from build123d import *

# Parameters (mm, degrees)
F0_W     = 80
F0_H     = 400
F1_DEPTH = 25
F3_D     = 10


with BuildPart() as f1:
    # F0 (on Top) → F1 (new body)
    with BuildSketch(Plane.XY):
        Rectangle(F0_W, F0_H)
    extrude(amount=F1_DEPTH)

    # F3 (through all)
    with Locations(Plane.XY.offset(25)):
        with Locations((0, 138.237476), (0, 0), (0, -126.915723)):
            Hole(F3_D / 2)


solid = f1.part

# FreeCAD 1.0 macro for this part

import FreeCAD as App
import Part
import Sketcher
Q = App.Units.Quantity


def add_polygon(sketch, points):
    """Adds a closed chain of lines whose ends are joined by coincident constraints."""
    first, n = sketch.GeometryCount, len(points)
    for a, b in zip(points, points[1:] + points[:1]):
        sketch.addGeometry(Part.LineSegment(App.Vector(*a, 0), App.Vector(*b, 0)), False)
    for i in range(n):
        sketch.addConstraint(Sketcher.Constraint("Coincident", first + i, 2, first + (i + 1) % n, 1))

doc = App.newDocument("Part")
body = doc.addObject("PartDesign::Body", "Body")

sketch1 = body.newObject("Sketcher::SketchObject", "Sketch")
sketch1.AttachmentSupport = (doc.getObject("XY_Plane"), [""])
sketch1.MapMode = "FlatFace"
add_polygon(sketch1, [(-40, 200), (-40, -200), (40, -200), (40, 200)])
sketch1.addConstraint([
    Sketcher.Constraint("Vertical", 0),
    Sketcher.Constraint("Horizontal", 1),
    Sketcher.Constraint("Vertical", 2),
    Sketcher.Constraint("Horizontal", 3),
    Sketcher.Constraint("Symmetric", 0, 2, 2, 2, -1, 1),
    Sketcher.Constraint("DistanceX", 1, 1, 1, 2, Q("80 mm")),
    Sketcher.Constraint("DistanceY", 0, 2, 0, 1, Q("400 mm")),
])
pad1 = body.newObject("PartDesign::Pad", "Pad")
pad1.Profile = sketch1
pad1.Length = 25

sketch2 = body.newObject("Sketcher::SketchObject", "Sketch001")
sketch2.AttachmentSupport = (doc.getObject("XY_Plane"), [""])
sketch2.MapMode = "FlatFace"
sketch2.AttachmentOffset = App.Placement(App.Vector(0, 0, 25), App.Rotation())
sketch2.addGeometry([
    Part.Circle(App.Vector(0, 138, 0), App.Vector(0, 0, 1), 5),
    Part.Circle(App.Vector(0, 0, 0), App.Vector(0, 0, 1), 5),
    Part.Circle(App.Vector(0, -127, 0), App.Vector(0, 0, 1), 5),
], False)
sketch2.addConstraint([
    Sketcher.Constraint("Coincident", 1, 3, -1, 1),
    Sketcher.Constraint("Equal", 0, 1),
    Sketcher.Constraint("Equal", 1, 2),
    Sketcher.Constraint("PointOnObject", 0, 3, -2),
    Sketcher.Constraint("PointOnObject", 2, 3, -2),
    Sketcher.Constraint("Diameter", 0, Q("10 mm")),
    Sketcher.Constraint("DistanceY", 2, 3, 0, 3, Q("265.153199 mm")),
    Sketcher.Constraint("DistanceY", -1, 1, 0, 3, Q("138.237476 mm")),
])
doc.recompute()
hole = body.newObject("PartDesign::Hole", "Hole")
hole.Profile = sketch2
hole.ThreadType = "None"
hole.Diameter = 10
hole.DepthType = "ThroughAll"

doc.recompute()
